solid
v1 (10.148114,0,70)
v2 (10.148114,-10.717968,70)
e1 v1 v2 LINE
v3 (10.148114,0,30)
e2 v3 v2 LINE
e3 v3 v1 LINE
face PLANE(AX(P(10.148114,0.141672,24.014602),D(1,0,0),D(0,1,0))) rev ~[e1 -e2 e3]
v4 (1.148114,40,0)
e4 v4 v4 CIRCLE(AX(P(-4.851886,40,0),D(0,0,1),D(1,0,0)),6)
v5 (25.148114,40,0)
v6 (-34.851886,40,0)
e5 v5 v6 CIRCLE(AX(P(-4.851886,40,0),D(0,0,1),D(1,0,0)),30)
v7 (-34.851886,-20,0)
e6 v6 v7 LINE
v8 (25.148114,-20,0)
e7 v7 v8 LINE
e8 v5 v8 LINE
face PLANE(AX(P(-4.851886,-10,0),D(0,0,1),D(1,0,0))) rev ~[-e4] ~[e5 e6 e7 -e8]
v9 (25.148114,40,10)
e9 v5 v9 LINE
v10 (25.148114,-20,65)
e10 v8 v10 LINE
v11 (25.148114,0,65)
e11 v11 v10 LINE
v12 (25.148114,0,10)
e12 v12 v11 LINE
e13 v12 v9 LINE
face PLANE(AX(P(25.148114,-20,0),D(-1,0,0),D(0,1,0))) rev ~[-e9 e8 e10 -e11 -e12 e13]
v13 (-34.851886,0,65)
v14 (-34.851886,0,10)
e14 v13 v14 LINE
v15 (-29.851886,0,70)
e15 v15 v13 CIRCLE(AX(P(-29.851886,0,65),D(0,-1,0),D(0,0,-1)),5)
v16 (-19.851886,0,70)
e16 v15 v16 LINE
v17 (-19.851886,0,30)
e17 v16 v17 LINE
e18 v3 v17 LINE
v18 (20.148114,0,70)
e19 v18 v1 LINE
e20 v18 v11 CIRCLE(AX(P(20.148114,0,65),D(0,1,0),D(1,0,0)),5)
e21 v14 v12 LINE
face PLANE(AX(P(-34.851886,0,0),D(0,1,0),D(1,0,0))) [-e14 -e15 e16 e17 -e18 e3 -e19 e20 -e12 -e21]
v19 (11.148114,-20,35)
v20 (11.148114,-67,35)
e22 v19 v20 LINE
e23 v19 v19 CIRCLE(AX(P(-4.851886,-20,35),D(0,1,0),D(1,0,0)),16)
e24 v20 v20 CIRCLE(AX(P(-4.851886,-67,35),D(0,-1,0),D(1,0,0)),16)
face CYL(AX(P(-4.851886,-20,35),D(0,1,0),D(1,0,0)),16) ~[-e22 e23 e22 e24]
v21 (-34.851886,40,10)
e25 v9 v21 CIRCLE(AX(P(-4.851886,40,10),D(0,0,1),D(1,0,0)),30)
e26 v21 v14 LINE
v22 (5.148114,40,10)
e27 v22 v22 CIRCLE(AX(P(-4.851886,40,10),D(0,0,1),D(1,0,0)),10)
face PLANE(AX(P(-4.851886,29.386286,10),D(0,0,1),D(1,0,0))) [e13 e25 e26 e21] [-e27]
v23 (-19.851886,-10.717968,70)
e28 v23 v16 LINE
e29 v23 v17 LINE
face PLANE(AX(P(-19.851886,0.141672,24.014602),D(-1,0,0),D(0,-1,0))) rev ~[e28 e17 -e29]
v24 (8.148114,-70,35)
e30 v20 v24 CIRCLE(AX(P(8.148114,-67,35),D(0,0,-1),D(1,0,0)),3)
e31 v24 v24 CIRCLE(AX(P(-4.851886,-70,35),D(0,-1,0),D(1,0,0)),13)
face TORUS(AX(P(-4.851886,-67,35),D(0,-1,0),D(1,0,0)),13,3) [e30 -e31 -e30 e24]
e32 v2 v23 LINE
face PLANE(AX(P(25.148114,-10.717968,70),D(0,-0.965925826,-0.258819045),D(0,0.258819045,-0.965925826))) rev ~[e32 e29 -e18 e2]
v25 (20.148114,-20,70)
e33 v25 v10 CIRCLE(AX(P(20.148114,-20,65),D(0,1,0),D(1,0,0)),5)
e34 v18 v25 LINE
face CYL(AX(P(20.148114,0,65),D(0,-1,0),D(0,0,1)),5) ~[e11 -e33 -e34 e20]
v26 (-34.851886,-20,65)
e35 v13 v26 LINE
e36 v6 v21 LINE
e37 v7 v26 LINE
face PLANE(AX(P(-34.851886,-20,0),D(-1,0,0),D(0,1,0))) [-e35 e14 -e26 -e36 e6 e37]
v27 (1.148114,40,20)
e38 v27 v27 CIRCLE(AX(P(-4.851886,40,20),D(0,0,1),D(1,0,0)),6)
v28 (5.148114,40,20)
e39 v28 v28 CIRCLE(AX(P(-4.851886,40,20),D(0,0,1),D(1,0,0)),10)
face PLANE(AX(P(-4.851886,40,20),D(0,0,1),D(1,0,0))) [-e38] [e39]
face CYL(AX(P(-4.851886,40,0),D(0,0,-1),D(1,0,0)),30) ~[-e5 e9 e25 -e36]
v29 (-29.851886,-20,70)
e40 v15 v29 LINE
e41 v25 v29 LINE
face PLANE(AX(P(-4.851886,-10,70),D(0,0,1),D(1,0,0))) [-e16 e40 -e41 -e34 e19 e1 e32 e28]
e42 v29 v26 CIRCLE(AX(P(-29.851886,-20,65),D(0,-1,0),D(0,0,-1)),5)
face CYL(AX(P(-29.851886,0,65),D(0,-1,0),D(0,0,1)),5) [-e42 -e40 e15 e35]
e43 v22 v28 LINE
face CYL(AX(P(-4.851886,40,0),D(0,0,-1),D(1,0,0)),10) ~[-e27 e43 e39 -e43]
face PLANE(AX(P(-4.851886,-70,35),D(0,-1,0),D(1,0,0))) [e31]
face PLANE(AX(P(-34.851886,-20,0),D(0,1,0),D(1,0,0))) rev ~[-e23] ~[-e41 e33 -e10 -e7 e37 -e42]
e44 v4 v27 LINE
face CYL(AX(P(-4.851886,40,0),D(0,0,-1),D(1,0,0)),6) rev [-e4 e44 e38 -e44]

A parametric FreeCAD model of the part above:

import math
import FreeCAD as App
import Part
import Sketcher
from FreeCAD import Vector
Q = App.Units.Quantity


def edges_at(feature, points):
    """Names of the edges that pass closest to the given points."""
    edges = feature.Shape.Edges
    near = lambda p: min(range(len(edges)), key=lambda i: edges[i].distToShape(Part.Vertex(*p))[0])
    return sorted({f"Edge{near(p) + 1}" for p in points})

doc = App.newDocument("Part")
body = doc.addObject("PartDesign::Body", "Body")

sketch1 = body.newObject("Sketcher::SketchObject", "Sketch")
sketch1.AttachmentSupport = (doc.getObject("XY_Plane"), [""])
sketch1.MapMode = "FlatFace"
sketch1.addGeometry(Part.LineSegment(Vector(-35, 40, 0), Vector(-35, 0, 0)), False)
sketch1.addGeometry(Part.LineSegment(Vector(-35, 0, 0), Vector(25, 0, 0)), False)
sketch1.addGeometry(Part.LineSegment(Vector(25, 0, 0), Vector(25, 40, 0)), False)
sketch1.addGeometry(Part.ArcOfCircle(Part.Circle(Vector(-5, 40, 0), Vector(0, 0, 1), 30), math.radians(0), math.radians(180)), False)
sketch1.addGeometry(Part.Circle(Vector(-5, 40, 0), Vector(0, 0, 1), 10), False)
sketch1.addConstraint(Sketcher.Constraint("Coincident", 0, 2, 1, 1))
sketch1.addConstraint(Sketcher.Constraint("Coincident", 1, 2, 2, 1))
sketch1.addConstraint(Sketcher.Constraint("Tangent", 2, 2, 3, 1))
sketch1.addConstraint(Sketcher.Constraint("Tangent", 3, 2, 0, 1))
sketch1.addConstraint(Sketcher.Constraint("Vertical", 0))
sketch1.addConstraint(Sketcher.Constraint("Horizontal", 1))
sketch1.addConstraint(Sketcher.Constraint("Vertical", 2))
sketch1.addConstraint(Sketcher.Constraint("Coincident", 4, 3, 3, 3))
sketch1.addConstraint(Sketcher.Constraint("PointOnObject", 0, 2, -1))
sketch1.addConstraint(Sketcher.Constraint("Diameter", 4, Q("20 mm")))
sketch1.addConstraint(Sketcher.Constraint("Radius", 3, Q("30 mm")))
sketch1.addConstraint(Sketcher.Constraint("DistanceY", 0, 2, 0, 1, Q("40 mm")))
sketch1.addConstraint(Sketcher.Constraint("DistanceX", 3, 3, -1, 1, Q("4.851886 mm")))
pad1 = body.newObject("PartDesign::Pad", "Pad")
pad1.Profile = sketch1
pad1.Length = 10

sketch2 = body.newObject("Sketcher::SketchObject", "Sketch001")
sketch2.AttachmentSupport = (doc.getObject("XY_Plane"), [""])
sketch2.MapMode = "FlatFace"
sketch2.addGeometry(Part.Circle(Vector(-5, 40, 0), Vector(0, 0, 1), 10), False)
sketch2.addGeometry(Part.Circle(Vector(-5, 40, 0), Vector(0, 0, 1), 6), False)
sketch2.addConstraint(Sketcher.Constraint("Coincident", 1, 3, 0, 3))
sketch2.addConstraint(Sketcher.Constraint("Diameter", 0, Q("20 mm")))
sketch2.addConstraint(Sketcher.Constraint("Diameter", 1, Q("12 mm")))
sketch2.addConstraint(Sketcher.Constraint("DistanceY", -1, 1, 0, 3, Q("40 mm")))
sketch2.addConstraint(Sketcher.Constraint("DistanceX", 0, 3, -1, 1, Q("4.851886 mm")))
pad2 = body.newObject("PartDesign::Pad", "Pad001")
pad2.Profile = sketch2
pad2.Length = 20

sketch3 = body.newObject("Sketcher::SketchObject", "Sketch002")
sketch3.AttachmentSupport = (doc.getObject("XY_Plane"), [""])
sketch3.MapMode = "FlatFace"
sketch3.addGeometry(Part.LineSegment(Vector(-35, 0, 0), Vector(-35, -20, 0)), False)
sketch3.addGeometry(Part.LineSegment(Vector(-35, -20, 0), Vector(25, -20, 0)), False)
sketch3.addGeometry(Part.LineSegment(Vector(25, -20, 0), Vector(25, 0, 0)), False)
sketch3.addGeometry(Part.LineSegment(Vector(25, 0, 0), Vector(-35, 0, 0)), False)
sketch3.addConstraint(Sketcher.Constraint("Coincident", 0, 2, 1, 1))
sketch3.addConstraint(Sketcher.Constraint("Coincident", 1, 2, 2, 1))
sketch3.addConstraint(Sketcher.Constraint("Coincident", 2, 2, 3, 1))
sketch3.addConstraint(Sketcher.Constraint("Coincident", 3, 2, 0, 1))
sketch3.addConstraint(Sketcher.Constraint("Vertical", 0))
sketch3.addConstraint(Sketcher.Constraint("Horizontal", 1))
sketch3.addConstraint(Sketcher.Constraint("Vertical", 2))
sketch3.addConstraint(Sketcher.Constraint("Horizontal", 3))
sketch3.addConstraint(Sketcher.Constraint("PointOnObject", 2, 2, -1))
sketch3.addConstraint(Sketcher.Constraint("DistanceX", 1, 1, 1, 2, Q("60 mm")))
sketch3.addConstraint(Sketcher.Constraint("DistanceY", 0, 2, 0, 1, Q("20 mm")))
sketch3.addConstraint(Sketcher.Constraint("DistanceX", 0, 2, -1, 1, Q("34.851886 mm")))
pad3 = body.newObject("PartDesign::Pad", "Pad002")
pad3.Profile = sketch3
pad3.Length = 70

sketch4 = body.newObject("Sketcher::SketchObject", "Sketch003")
sketch4.AttachmentSupport = (doc.getObject("XZ_Plane"), [""])
sketch4.MapMode = "FlatFace"
sketch4.AttachmentOffset = App.Placement(Vector(0, 0, 20), App.Rotation())
sketch4.addGeometry(Part.Circle(Vector(-5, 35, 0), Vector(0, 0, 1), 16), False)
sketch4.addConstraint(Sketcher.Constraint("Diameter", 0, Q("32 mm")))
sketch4.addConstraint(Sketcher.Constraint("DistanceY", -1, 1, 0, 3, Q("35 mm")))
sketch4.addConstraint(Sketcher.Constraint("DistanceX", 0, 3, -1, 1, Q("4.851886 mm")))
pad4 = body.newObject("PartDesign::Pad", "Pad003")
pad4.Profile = sketch4
pad4.Length = 50
doc.recompute()

fillet = body.newObject("PartDesign::Fillet", "Fillet")
fillet.Base = (pad4, edges_at(pad4, [(-20.852, -70, 35)]))
fillet.Radius = 3

sketch5 = body.newObject("Sketcher::SketchObject", "Sketch004")
sketch5.AttachmentSupport = (doc.getObject("YZ_Plane"), [""])
sketch5.MapMode = "FlatFace"
sketch5.AttachmentOffset = App.Placement(Vector(0, 0, 25.148114), App.Rotation())
sketch5.addGeometry(Part.LineSegment(Vector(0, 30, 0), Vector(0, 70, 0)), False)
sketch5.addGeometry(Part.LineSegment(Vector(0, 70, 0), Vector(-11, 70, 0)), False)
sketch5.addGeometry(Part.LineSegment(Vector(-11, 70, 0), Vector(0, 30, 0)), False)
sketch5.addConstraint(Sketcher.Constraint("Coincident", 0, 2, 1, 1))
sketch5.addConstraint(Sketcher.Constraint("Coincident", 1, 2, 2, 1))
sketch5.addConstraint(Sketcher.Constraint("Coincident", 2, 2, 0, 1))
sketch5.addConstraint(Sketcher.Constraint("Vertical", 0))
sketch5.addConstraint(Sketcher.Constraint("Horizontal", 1))
sketch5.addConstraint(Sketcher.Constraint("PointOnObject", 0, 2, -2))
sketch5.addConstraint(Sketcher.Constraint("DistanceY", 0, 1, 0, 2, Q("40 mm")))
sketch5.addConstraint(Sketcher.Constraint("Angle", 2, Q("-75 deg")))
sketch5.addConstraint(Sketcher.Constraint("DistanceY", -1, 1, 0, 2, Q("70 mm")))
pocket1 = body.newObject("PartDesign::Pocket", "Pocket")
pocket1.Profile = sketch5
pocket1.Length = 65.1

sketch6 = body.newObject("Sketcher::SketchObject", "Sketch005")
sketch6.AttachmentSupport = (doc.getObject("YZ_Plane"), [""])
sketch6.MapMode = "FlatFace"
sketch6.AttachmentOffset = App.Placement(Vector(0, 0, -34.851886), App.Rotation())
sketch6.addGeometry(Part.LineSegment(Vector(0, 10, 0), Vector(40, 10, 0)), False)
sketch6.addGeometry(Part.LineSegment(Vector(40, 10, 0), Vector(40, 0, 0)), False)
sketch6.addGeometry(Part.LineSegment(Vector(40, 0, 0), Vector(-20, 0, 0)), False)
sketch6.addGeometry(Part.LineSegment(Vector(-20, 0, 0), Vector(-20, 70, 0)), False)
sketch6.addGeometry(Part.LineSegment(Vector(-20, 70, 0), Vector(0, 70, 0)), False)
sketch6.addGeometry(Part.LineSegment(Vector(0, 70, 0), Vector(0, 10, 0)), False)
sketch6.addConstraint(Sketcher.Constraint("Coincident", 0, 2, 1, 1))
sketch6.addConstraint(Sketcher.Constraint("Coincident", 1, 2, 2, 1))
sketch6.addConstraint(Sketcher.Constraint("Coincident", 2, 2, 3, 1))
sketch6.addConstraint(Sketcher.Constraint("Coincident", 3, 2, 4, 1))
sketch6.addConstraint(Sketcher.Constraint("Coincident", 4, 2, 5, 1))
sketch6.addConstraint(Sketcher.Constraint("Coincident", 5, 2, 0, 1))
sketch6.addConstraint(Sketcher.Constraint("Horizontal", 0))
sketch6.addConstraint(Sketcher.Constraint("Vertical", 1))
sketch6.addConstraint(Sketcher.Constraint("Horizontal", 2))
sketch6.addConstraint(Sketcher.Constraint("Vertical", 3))
sketch6.addConstraint(Sketcher.Constraint("Horizontal", 4))
sketch6.addConstraint(Sketcher.Constraint("Vertical", 5))
sketch6.addConstraint(Sketcher.Constraint("PointOnObject", 1, 2, -1))
sketch6.addConstraint(Sketcher.Constraint("PointOnObject", 4, 2, -2))
sketch6.addConstraint(Sketcher.Constraint("Equal", 2, 5))
sketch6.addConstraint(Sketcher.Constraint("DistanceX", 0, 1, 0, 2, Q("40 mm")))
sketch6.addConstraint(Sketcher.Constraint("DistanceX", 2, 2, 2, 1, Q("60 mm")))
sketch6.addConstraint(Sketcher.Constraint("DistanceY", 1, 2, 1, 1, Q("10 mm")))
pad5 = body.newObject("PartDesign::Pad", "Pad004")
pad5.Profile = sketch6
pad5.Length = 15

sketch7 = body.newObject("Sketcher::SketchObject", "Sketch006")
sketch7.AttachmentSupport = (doc.getObject("YZ_Plane"), [""])
sketch7.MapMode = "FlatFace"
sketch7.AttachmentOffset = App.Placement(Vector(0, 0, 25.148114), App.Rotation())
sketch7.addGeometry(Part.LineSegment(Vector(0, 10, 0), Vector(0, 70, 0)), False)
sketch7.addGeometry(Part.LineSegment(Vector(0, 70, 0), Vector(-20, 70, 0)), False)
sketch7.addGeometry(Part.LineSegment(Vector(-20, 70, 0), Vector(-20, 0, 0)), False)
sketch7.addGeometry(Part.LineSegment(Vector(-20, 0, 0), Vector(40, 0, 0)), False)
sketch7.addGeometry(Part.LineSegment(Vector(40, 0, 0), Vector(40, 10, 0)), False)
sketch7.addGeometry(Part.LineSegment(Vector(40, 10, 0), Vector(0, 10, 0)), False)
sketch7.addConstraint(Sketcher.Constraint("Coincident", 0, 2, 1, 1))
sketch7.addConstraint(Sketcher.Constraint("Coincident", 1, 2, 2, 1))
sketch7.addConstraint(Sketcher.Constraint("Coincident", 2, 2, 3, 1))
sketch7.addConstraint(Sketcher.Constraint("Coincident", 3, 2, 4, 1))
sketch7.addConstraint(Sketcher.Constraint("Coincident", 4, 2, 5, 1))
sketch7.addConstraint(Sketcher.Constraint("Coincident", 5, 2, 0, 1))
sketch7.addConstraint(Sketcher.Constraint("Vertical", 0))
sketch7.addConstraint(Sketcher.Constraint("Horizontal", 1))
sketch7.addConstraint(Sketcher.Constraint("Vertical", 2))
sketch7.addConstraint(Sketcher.Constraint("Horizontal", 3))
sketch7.addConstraint(Sketcher.Constraint("Vertical", 4))
sketch7.addConstraint(Sketcher.Constraint("Horizontal", 5))
sketch7.addConstraint(Sketcher.Constraint("PointOnObject", 0, 2, -2))
sketch7.addConstraint(Sketcher.Constraint("PointOnObject", 2, 2, -1))
sketch7.addConstraint(Sketcher.Constraint("Equal", 3, 0))
sketch7.addConstraint(Sketcher.Constraint("DistanceX", 1, 2, 1, 1, Q("20 mm")))
sketch7.addConstraint(Sketcher.Constraint("DistanceX", 3, 1, 3, 2, Q("60 mm")))
sketch7.addConstraint(Sketcher.Constraint("DistanceY", 2, 2, 2, 1, Q("70 mm")))
pad6 = body.newObject("PartDesign::Pad", "Pad005")
pad6.Profile = sketch7
pad6.Length = 15
pad6.Reversed = True
doc.recompute()

fillet2 = body.newObject("PartDesign::Fillet", "Fillet001")
fillet2.Base = (pad6, edges_at(pad6, [(-34.852, -10, 70)]))
fillet2.Radius = 5
doc.recompute()

fillet3 = body.newObject("PartDesign::Fillet", "Fillet002")
fillet3.Base = (fillet2, edges_at(fillet2, [(25.148, -10, 70)]))
fillet3.Radius = 5

doc.recompute()
